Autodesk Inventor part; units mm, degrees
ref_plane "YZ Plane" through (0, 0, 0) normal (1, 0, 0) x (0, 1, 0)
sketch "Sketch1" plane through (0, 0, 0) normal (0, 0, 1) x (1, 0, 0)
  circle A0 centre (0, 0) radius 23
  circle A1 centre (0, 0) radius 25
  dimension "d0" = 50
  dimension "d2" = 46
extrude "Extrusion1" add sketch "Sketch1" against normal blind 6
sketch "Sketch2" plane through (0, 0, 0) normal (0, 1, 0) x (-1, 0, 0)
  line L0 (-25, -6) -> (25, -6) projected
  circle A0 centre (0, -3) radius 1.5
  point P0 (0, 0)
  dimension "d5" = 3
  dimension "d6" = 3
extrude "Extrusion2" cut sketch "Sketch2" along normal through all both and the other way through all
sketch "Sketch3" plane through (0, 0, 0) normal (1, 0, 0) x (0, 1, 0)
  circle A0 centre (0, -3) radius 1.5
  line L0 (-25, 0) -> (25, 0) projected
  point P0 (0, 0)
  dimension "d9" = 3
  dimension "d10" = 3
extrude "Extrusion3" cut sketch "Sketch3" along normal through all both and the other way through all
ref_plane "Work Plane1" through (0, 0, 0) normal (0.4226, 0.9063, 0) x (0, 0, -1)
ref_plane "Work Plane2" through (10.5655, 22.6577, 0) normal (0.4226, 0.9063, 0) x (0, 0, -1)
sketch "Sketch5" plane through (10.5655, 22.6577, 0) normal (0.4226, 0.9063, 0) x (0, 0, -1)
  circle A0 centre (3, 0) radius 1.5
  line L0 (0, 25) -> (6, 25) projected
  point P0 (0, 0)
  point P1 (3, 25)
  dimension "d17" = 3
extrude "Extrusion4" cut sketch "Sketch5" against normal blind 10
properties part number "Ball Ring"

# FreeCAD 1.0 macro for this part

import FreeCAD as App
import Part
import Sketcher
from FreeCAD import Vector
Q = App.Units.Quantity

doc = App.newDocument("Part")
body = doc.addObject("PartDesign::Body", "Body")

sketch1 = body.newObject("Sketcher::SketchObject", "Sketch")
sketch1.AttachmentSupport = (doc.getObject("XY_Plane"), [""])
sketch1.MapMode = "FlatFace"
sketch1.addGeometry([
    Part.Circle(Vector(0, 0, 0), Vector(0, 0, 1), 25),
    Part.Circle(Vector(0, 0, 0), Vector(0, 0, 1), 23),
], False)
sketch1.addConstraint([
    Sketcher.Constraint("Coincident", 0, 3, -1, 1),
    Sketcher.Constraint("Coincident", 1, 3, -1, 1),
    Sketcher.Constraint("Diameter", 0, Q("50 mm")),
    Sketcher.Constraint("Diameter", 1, Q("46 mm")),
])
pad1 = body.newObject("PartDesign::Pad", "Pad")
pad1.Profile = sketch1
pad1.Length = 6
pad1.Reversed = True

sketch2 = body.newObject("Sketcher::SketchObject", "Sketch001")
sketch2.AttachmentSupport = (doc.getObject("XZ_Plane"), [""])
sketch2.MapMode = "FlatFace"
sketch2.addGeometry(Part.Circle(Vector(0, -3, 0), Vector(0, 0, 1), 1.5), False)
sketch2.addConstraint([
    Sketcher.Constraint("PointOnObject", 0, 3, -2),
    Sketcher.Constraint("Diameter", 0, Q("3 mm")),
    Sketcher.Constraint("DistanceY", 0, 3, -1, 1, Q("3 mm")),
])
pocket1 = body.newObject("PartDesign::Pocket", "Pocket")
pocket1.Profile = sketch2
pocket1.Type = "ThroughAll"
pocket1.Midplane = True

sketch3 = body.newObject("Sketcher::SketchObject", "Sketch002")
sketch3.AttachmentSupport = (doc.getObject("YZ_Plane"), [""])
sketch3.MapMode = "FlatFace"
sketch3.addGeometry(Part.Circle(Vector(0, -3, 0), Vector(0, 0, 1), 1.5), False)
sketch3.addConstraint([
    Sketcher.Constraint("PointOnObject", 0, 3, -2),
    Sketcher.Constraint("Diameter", 0, Q("3 mm")),
    Sketcher.Constraint("DistanceY", 0, 3, -1, 1, Q("3 mm")),
])
pocket2 = body.newObject("PartDesign::Pocket", "Pocket001")
pocket2.Profile = sketch3
pocket2.Type = "ThroughAll"
pocket2.Midplane = True

sketch4 = body.newObject("Sketcher::SketchObject", "Sketch003")
sketch4.Placement = App.Placement(Vector(10.5655, 22.6577, 0), App.Rotation(Vector(0, 0, -1), Vector(-0.906307787, 0.422618262, 0), Vector(0.422618262, 0.906307787, 0), "ZXY"))
sketch4.addGeometry(Part.Circle(Vector(3, 0, 0), Vector(0, 0, 1), 1.5), False)
sketch4.addConstraint([
    Sketcher.Constraint("PointOnObject", 0, 3, -1),
    Sketcher.Constraint("Diameter", 0, Q("3 mm")),
    Sketcher.Constraint("DistanceX", -1, 1, 0, 3, Q("3 mm")),
])
pocket3 = body.newObject("PartDesign::Pocket", "Pocket002")
pocket3.Profile = sketch4
pocket3.Length = 10

doc.recompute()
